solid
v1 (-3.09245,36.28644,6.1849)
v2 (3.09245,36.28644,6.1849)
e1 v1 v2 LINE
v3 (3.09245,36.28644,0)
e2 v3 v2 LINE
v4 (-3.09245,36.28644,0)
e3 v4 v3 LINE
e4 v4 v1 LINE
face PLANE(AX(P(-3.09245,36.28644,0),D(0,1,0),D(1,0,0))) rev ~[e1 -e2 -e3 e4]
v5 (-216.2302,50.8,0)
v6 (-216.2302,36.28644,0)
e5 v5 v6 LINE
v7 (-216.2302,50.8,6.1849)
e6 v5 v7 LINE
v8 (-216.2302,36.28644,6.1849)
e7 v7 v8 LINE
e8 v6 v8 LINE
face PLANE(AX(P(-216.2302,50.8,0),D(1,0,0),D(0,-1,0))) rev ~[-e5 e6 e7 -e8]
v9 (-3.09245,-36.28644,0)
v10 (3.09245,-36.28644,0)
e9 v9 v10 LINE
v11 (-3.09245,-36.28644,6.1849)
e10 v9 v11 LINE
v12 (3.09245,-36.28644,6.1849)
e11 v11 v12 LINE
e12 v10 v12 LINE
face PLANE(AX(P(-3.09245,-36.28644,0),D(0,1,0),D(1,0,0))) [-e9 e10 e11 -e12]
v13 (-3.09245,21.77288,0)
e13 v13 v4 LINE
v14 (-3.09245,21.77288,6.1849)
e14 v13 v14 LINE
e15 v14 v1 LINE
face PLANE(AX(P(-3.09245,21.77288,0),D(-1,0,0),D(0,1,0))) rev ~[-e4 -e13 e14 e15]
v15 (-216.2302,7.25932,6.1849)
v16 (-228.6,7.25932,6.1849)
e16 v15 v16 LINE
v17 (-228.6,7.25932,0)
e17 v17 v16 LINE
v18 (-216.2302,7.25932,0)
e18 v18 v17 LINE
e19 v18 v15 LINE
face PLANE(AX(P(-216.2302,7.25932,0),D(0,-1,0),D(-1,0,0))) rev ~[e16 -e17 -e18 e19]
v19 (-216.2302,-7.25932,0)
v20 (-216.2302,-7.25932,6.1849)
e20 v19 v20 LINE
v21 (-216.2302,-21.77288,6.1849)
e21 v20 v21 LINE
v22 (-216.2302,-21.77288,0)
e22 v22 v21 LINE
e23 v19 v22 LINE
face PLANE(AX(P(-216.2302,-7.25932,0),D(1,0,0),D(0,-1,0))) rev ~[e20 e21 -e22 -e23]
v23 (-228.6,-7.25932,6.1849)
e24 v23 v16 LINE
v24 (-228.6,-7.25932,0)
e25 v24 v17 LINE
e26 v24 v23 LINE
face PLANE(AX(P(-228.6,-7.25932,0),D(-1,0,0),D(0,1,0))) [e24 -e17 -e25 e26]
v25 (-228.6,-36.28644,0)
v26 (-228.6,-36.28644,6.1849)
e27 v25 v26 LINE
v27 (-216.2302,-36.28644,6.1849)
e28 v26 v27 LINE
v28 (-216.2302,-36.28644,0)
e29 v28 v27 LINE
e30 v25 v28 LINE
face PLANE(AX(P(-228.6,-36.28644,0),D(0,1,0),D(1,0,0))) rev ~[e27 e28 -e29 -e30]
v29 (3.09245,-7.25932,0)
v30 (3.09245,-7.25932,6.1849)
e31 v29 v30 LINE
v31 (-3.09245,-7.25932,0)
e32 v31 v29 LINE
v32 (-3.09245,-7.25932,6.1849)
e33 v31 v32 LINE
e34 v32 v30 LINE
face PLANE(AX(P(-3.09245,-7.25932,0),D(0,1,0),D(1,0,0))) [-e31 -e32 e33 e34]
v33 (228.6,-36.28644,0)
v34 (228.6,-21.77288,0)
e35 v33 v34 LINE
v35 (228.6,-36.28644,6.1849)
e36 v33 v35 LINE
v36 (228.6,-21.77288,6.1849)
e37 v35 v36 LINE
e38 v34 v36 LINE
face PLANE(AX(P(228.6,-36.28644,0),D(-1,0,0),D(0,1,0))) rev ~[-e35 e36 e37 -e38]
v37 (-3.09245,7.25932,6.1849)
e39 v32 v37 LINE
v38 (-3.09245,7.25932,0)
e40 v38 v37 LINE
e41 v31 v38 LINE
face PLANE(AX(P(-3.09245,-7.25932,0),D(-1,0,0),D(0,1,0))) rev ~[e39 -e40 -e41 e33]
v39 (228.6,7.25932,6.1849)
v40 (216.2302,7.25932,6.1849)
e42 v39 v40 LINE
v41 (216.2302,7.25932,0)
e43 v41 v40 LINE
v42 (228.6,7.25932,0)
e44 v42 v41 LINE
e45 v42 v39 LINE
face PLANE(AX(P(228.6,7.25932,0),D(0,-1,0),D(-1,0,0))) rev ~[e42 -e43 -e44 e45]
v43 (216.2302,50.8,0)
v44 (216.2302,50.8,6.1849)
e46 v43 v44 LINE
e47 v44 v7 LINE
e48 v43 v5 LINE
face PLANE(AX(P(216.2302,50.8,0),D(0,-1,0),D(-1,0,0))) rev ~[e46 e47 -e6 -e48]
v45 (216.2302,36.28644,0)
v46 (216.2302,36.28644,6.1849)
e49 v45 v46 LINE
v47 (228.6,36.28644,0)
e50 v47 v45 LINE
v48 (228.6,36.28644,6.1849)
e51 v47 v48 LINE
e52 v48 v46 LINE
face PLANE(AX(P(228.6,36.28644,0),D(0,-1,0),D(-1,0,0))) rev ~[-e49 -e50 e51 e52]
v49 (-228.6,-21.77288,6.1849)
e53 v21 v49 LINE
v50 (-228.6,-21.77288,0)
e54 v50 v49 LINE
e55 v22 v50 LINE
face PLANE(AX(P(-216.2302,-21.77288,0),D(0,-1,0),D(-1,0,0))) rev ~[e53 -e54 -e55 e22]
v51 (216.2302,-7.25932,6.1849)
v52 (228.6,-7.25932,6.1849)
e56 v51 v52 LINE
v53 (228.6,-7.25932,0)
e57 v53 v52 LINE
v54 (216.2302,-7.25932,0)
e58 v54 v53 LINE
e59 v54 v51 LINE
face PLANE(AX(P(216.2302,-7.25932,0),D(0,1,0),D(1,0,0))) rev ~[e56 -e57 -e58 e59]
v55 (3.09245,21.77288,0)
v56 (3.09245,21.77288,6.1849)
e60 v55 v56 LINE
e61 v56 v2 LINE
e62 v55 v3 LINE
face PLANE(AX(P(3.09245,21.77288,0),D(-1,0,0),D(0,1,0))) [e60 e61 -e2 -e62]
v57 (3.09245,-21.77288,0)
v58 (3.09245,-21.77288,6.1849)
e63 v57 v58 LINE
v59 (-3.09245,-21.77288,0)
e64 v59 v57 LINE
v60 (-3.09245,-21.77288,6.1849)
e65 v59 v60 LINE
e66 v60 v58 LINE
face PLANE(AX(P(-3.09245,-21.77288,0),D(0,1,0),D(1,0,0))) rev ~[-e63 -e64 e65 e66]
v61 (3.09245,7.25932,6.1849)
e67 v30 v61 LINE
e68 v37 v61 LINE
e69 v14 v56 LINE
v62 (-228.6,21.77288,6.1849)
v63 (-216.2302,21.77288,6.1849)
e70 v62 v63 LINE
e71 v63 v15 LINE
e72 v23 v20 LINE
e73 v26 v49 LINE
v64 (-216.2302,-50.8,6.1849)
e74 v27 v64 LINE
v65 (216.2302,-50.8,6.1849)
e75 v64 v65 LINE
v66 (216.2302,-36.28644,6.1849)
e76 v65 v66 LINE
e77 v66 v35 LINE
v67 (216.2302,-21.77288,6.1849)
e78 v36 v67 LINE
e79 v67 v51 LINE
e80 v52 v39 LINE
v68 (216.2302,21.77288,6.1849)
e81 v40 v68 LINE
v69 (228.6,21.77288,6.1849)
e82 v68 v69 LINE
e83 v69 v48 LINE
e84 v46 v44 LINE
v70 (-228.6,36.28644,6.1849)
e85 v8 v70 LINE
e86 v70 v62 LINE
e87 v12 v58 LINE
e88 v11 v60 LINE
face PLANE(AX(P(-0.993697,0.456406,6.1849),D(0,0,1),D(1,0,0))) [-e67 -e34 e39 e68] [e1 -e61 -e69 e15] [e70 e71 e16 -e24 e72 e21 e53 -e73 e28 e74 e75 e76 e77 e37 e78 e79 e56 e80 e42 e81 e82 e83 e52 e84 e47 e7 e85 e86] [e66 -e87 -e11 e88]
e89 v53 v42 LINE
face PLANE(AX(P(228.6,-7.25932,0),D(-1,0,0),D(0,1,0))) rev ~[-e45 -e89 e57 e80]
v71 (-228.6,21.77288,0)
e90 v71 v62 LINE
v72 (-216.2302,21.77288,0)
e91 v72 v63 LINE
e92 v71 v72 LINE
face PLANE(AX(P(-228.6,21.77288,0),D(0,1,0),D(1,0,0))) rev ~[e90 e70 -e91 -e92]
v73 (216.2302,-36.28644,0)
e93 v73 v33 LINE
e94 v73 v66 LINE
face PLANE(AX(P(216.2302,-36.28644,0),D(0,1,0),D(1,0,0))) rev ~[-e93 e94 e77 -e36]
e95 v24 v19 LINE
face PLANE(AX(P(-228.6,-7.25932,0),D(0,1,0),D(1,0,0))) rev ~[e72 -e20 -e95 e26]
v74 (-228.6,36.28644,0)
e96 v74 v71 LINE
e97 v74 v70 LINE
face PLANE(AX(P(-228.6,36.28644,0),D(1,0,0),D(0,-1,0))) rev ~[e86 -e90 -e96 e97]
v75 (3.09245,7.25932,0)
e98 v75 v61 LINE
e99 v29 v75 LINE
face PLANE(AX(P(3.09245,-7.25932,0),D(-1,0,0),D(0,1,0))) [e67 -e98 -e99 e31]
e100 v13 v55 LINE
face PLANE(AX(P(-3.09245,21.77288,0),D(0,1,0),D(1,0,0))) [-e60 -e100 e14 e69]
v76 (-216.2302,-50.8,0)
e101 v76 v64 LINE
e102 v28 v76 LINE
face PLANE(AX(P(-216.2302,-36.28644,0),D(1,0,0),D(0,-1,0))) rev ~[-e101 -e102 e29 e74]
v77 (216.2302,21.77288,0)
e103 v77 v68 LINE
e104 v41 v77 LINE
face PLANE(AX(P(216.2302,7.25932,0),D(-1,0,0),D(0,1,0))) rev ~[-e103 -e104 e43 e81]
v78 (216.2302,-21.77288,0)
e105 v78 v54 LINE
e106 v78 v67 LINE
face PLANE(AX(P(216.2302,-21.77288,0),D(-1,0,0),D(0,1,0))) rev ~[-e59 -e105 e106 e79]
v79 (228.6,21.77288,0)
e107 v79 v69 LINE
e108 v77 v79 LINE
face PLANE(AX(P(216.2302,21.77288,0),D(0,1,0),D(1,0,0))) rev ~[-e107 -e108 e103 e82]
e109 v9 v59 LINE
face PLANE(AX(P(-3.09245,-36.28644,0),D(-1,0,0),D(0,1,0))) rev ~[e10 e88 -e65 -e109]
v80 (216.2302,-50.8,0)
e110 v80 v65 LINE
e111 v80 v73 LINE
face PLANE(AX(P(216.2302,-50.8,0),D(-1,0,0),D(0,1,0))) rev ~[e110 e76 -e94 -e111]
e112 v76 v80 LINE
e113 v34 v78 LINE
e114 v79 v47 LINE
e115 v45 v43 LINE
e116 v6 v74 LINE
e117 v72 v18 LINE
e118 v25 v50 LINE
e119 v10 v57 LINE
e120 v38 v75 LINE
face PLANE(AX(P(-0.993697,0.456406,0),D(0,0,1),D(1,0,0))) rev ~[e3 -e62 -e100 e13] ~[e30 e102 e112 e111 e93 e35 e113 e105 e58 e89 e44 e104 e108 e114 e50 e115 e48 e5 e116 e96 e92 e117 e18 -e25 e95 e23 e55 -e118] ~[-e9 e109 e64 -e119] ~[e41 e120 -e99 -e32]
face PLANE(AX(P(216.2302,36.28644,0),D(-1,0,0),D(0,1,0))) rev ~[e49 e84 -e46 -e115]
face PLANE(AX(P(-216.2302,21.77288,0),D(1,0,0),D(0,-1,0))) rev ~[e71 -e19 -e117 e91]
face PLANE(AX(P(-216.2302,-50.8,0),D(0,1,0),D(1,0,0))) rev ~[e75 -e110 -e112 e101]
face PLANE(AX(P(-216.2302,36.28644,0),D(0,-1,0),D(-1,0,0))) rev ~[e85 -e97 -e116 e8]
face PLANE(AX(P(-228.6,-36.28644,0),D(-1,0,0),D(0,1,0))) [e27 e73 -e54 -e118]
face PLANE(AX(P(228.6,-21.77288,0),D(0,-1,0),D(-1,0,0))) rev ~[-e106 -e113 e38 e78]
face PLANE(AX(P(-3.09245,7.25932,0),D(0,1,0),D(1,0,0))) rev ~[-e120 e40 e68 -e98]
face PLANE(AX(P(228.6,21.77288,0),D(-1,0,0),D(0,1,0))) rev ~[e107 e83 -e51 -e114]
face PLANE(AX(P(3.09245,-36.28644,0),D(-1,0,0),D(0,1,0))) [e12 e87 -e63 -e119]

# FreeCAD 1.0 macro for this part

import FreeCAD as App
import Part
import Sketcher
Q = App.Units.Quantity

doc = App.newDocument("Part")
body = doc.addObject("PartDesign::Body", "Body")

sketch1 = doc.addObject("Sketcher::SketchObject", "Sketch")
body.addObject(sketch1)
sketch1.AttachmentSupport = (doc.XY_Plane, [""])
sketch1.MapMode = "FlatFace"
sketch1.addGeometry(Part.LineSegment(App.Vector(216.2302, -50.8, 0), App.Vector(216.2302, -36.28644, 0)), False)
sketch1.addGeometry(Part.LineSegment(App.Vector(216.2302, -36.28644, 0), App.Vector(228.6, -36.28644, 0)), False)
sketch1.addGeometry(Part.LineSegment(App.Vector(228.6, -36.28644, 0), App.Vector(228.6, -21.77288, 0)), False)
sketch1.addGeometry(Part.LineSegment(App.Vector(228.6, -21.77288, 0), App.Vector(216.2302, -21.77288, 0)), False)
sketch1.addGeometry(Part.LineSegment(App.Vector(216.2302, -21.77288, 0), App.Vector(216.2302, -7.25932, 0)), False)
sketch1.addGeometry(Part.LineSegment(App.Vector(216.2302, -7.25932, 0), App.Vector(228.6, -7.25932, 0)), False)
sketch1.addGeometry(Part.LineSegment(App.Vector(228.6, -7.25932, 0), App.Vector(228.6, 7.25932, 0)), False)
sketch1.addGeometry(Part.LineSegment(App.Vector(228.6, 7.25932, 0), App.Vector(216.2302, 7.25932, 0)), False)
sketch1.addGeometry(Part.LineSegment(App.Vector(216.2302, 7.25932, 0), App.Vector(216.2302, 21.77288, 0)), False)
sketch1.addGeometry(Part.LineSegment(App.Vector(216.2302, 21.77288, 0), App.Vector(228.6, 21.77288, 0)), False)
sketch1.addGeometry(Part.LineSegment(App.Vector(228.6, 21.77288, 0), App.Vector(228.6, 36.28644, 0)), False)
sketch1.addGeometry(Part.LineSegment(App.Vector(228.6, 36.28644, 0), App.Vector(216.2302, 36.28644, 0)), False)
sketch1.addGeometry(Part.LineSegment(App.Vector(216.2302, 36.28644, 0), App.Vector(216.2302, 50.8, 0)), False)
sketch1.addGeometry(Part.LineSegment(App.Vector(216.2302, 50.8, 0), App.Vector(-216.2302, 50.8, 0)), False)
sketch1.addGeometry(Part.LineSegment(App.Vector(-216.2302, 50.8, 0), App.Vector(-216.2302, 36.28644, 0)), False)
sketch1.addGeometry(Part.LineSegment(App.Vector(-216.2302, 36.28644, 0), App.Vector(-228.6, 36.28644, 0)), False)
sketch1.addGeometry(Part.LineSegment(App.Vector(-228.6, 36.28644, 0), App.Vector(-228.6, 21.77288, 0)), False)
sketch1.addGeometry(Part.LineSegment(App.Vector(-228.6, 21.77288, 0), App.Vector(-216.2302, 21.77288, 0)), False)
sketch1.addGeometry(Part.LineSegment(App.Vector(-216.2302, 21.77288, 0), App.Vector(-216.2302, 7.25932, 0)), False)
sketch1.addGeometry(Part.LineSegment(App.Vector(-216.2302, 7.25932, 0), App.Vector(-228.6, 7.25932, 0)), False)
sketch1.addGeometry(Part.LineSegment(App.Vector(-228.6, 7.25932, 0), App.Vector(-228.6, -7.25932, 0)), False)
sketch1.addGeometry(Part.LineSegment(App.Vector(-228.6, -7.25932, 0), App.Vector(-216.2302, -7.25932, 0)), False)
sketch1.addGeometry(Part.LineSegment(App.Vector(-216.2302, -7.25932, 0), App.Vector(-216.2302, -21.77288, 0)), False)
sketch1.addGeometry(Part.LineSegment(App.Vector(-216.2302, -21.77288, 0), App.Vector(-228.6, -21.77288, 0)), False)
sketch1.addGeometry(Part.LineSegment(App.Vector(-228.6, -21.77288, 0), App.Vector(-228.6, -36.28644, 0)), False)
sketch1.addGeometry(Part.LineSegment(App.Vector(-228.6, -36.28644, 0), App.Vector(-216.2302, -36.28644, 0)), False)
sketch1.addGeometry(Part.LineSegment(App.Vector(-216.2302, -36.28644, 0), App.Vector(-216.2302, -50.8, 0)), False)
sketch1.addGeometry(Part.LineSegment(App.Vector(-216.2302, -50.8, 0), App.Vector(216.2302, -50.8, 0)), False)
sketch1.addGeometry(Part.LineSegment(App.Vector(3.09245, -36.28644, 0), App.Vector(-3.09245, -36.28644, 0)), False)
sketch1.addGeometry(Part.LineSegment(App.Vector(-3.09245, -36.28644, 0), App.Vector(-3.09245, -21.77288, 0)), False)
sketch1.addGeometry(Part.LineSegment(App.Vector(-3.09245, -21.77288, 0), App.Vector(3.09245, -21.77288, 0)), False)
sketch1.addGeometry(Part.LineSegment(App.Vector(3.09245, -21.77288, 0), App.Vector(3.09245, -36.28644, 0)), False)
sketch1.addGeometry(Part.LineSegment(App.Vector(3.09245, -7.25932, 0), App.Vector(-3.09245, -7.25932, 0)), False)
sketch1.addGeometry(Part.LineSegment(App.Vector(-3.09245, -7.25932, 0), App.Vector(-3.09245, 7.25932, 0)), False)
sketch1.addGeometry(Part.LineSegment(App.Vector(-3.09245, 7.25932, 0), App.Vector(3.09245, 7.25932, 0)), False)
sketch1.addGeometry(Part.LineSegment(App.Vector(3.09245, 7.25932, 0), App.Vector(3.09245, -7.25932, 0)), False)
sketch1.addGeometry(Part.LineSegment(App.Vector(3.09245, 21.77288, 0), App.Vector(-3.09245, 21.77288, 0)), False)
sketch1.addGeometry(Part.LineSegment(App.Vector(-3.09245, 21.77288, 0), App.Vector(-3.09245, 36.28644, 0)), False)
sketch1.addGeometry(Part.LineSegment(App.Vector(-3.09245, 36.28644, 0), App.Vector(3.09245, 36.28644, 0)), False)
sketch1.addGeometry(Part.LineSegment(App.Vector(3.09245, 36.28644, 0), App.Vector(3.09245, 21.77288, 0)), False)
sketch1.addConstraint(Sketcher.Constraint("Coincident", 0, 2, 1, 1))
sketch1.addConstraint(Sketcher.Constraint("Coincident", 1, 2, 2, 1))
sketch1.addConstraint(Sketcher.Constraint("Coincident", 2, 2, 3, 1))
sketch1.addConstraint(Sketcher.Constraint("Coincident", 3, 2, 4, 1))
sketch1.addConstraint(Sketcher.Constraint("Coincident", 4, 2, 5, 1))
sketch1.addConstraint(Sketcher.Constraint("Coincident", 5, 2, 6, 1))
sketch1.addConstraint(Sketcher.Constraint("Coincident", 6, 2, 7, 1))
sketch1.addConstraint(Sketcher.Constraint("Coincident", 7, 2, 8, 1))
sketch1.addConstraint(Sketcher.Constraint("Coincident", 8, 2, 9, 1))
sketch1.addConstraint(Sketcher.Constraint("Coincident", 9, 2, 10, 1))
sketch1.addConstraint(Sketcher.Constraint("Coincident", 10, 2, 11, 1))
sketch1.addConstraint(Sketcher.Constraint("Coincident", 11, 2, 12, 1))
sketch1.addConstraint(Sketcher.Constraint("Coincident", 12, 2, 13, 1))
sketch1.addConstraint(Sketcher.Constraint("Coincident", 13, 2, 14, 1))
sketch1.addConstraint(Sketcher.Constraint("Coincident", 14, 2, 15, 1))
sketch1.addConstraint(Sketcher.Constraint("Coincident", 15, 2, 16, 1))
sketch1.addConstraint(Sketcher.Constraint("Coincident", 16, 2, 17, 1))
sketch1.addConstraint(Sketcher.Constraint("Coincident", 17, 2, 18, 1))
sketch1.addConstraint(Sketcher.Constraint("Coincident", 18, 2, 19, 1))
sketch1.addConstraint(Sketcher.Constraint("Coincident", 19, 2, 20, 1))
sketch1.addConstraint(Sketcher.Constraint("Coincident", 20, 2, 21, 1))
sketch1.addConstraint(Sketcher.Constraint("Coincident", 21, 2, 22, 1))
sketch1.addConstraint(Sketcher.Constraint("Coincident", 22, 2, 23, 1))
sketch1.addConstraint(Sketcher.Constraint("Coincident", 23, 2, 24, 1))
sketch1.addConstraint(Sketcher.Constraint("Coincident", 24, 2, 25, 1))
sketch1.addConstraint(Sketcher.Constraint("Coincident", 25, 2, 26, 1))
sketch1.addConstraint(Sketcher.Constraint("Coincident", 26, 2, 27, 1))
sketch1.addConstraint(Sketcher.Constraint("Coincident", 27, 2, 0, 1))
sketch1.addConstraint(Sketcher.Constraint("Coincident", 28, 2, 29, 1))
sketch1.addConstraint(Sketcher.Constraint("Coincident", 29, 2, 30, 1))
sketch1.addConstraint(Sketcher.Constraint("Coincident", 30, 2, 31, 1))
sketch1.addConstraint(Sketcher.Constraint("Coincident", 31, 2, 28, 1))
sketch1.addConstraint(Sketcher.Constraint("Coincident", 32, 2, 33, 1))
sketch1.addConstraint(Sketcher.Constraint("Coincident", 33, 2, 34, 1))
sketch1.addConstraint(Sketcher.Constraint("Coincident", 34, 2, 35, 1))
sketch1.addConstraint(Sketcher.Constraint("Coincident", 35, 2, 32, 1))
sketch1.addConstraint(Sketcher.Constraint("Coincident", 36, 2, 37, 1))
sketch1.addConstraint(Sketcher.Constraint("Coincident", 37, 2, 38, 1))
sketch1.addConstraint(Sketcher.Constraint("Coincident", 38, 2, 39, 1))
sketch1.addConstraint(Sketcher.Constraint("Coincident", 39, 2, 36, 1))
sketch1.addConstraint(Sketcher.Constraint("Vertical", 0))
sketch1.addConstraint(Sketcher.Constraint("Horizontal", 1))
sketch1.addConstraint(Sketcher.Constraint("Vertical", 2))
sketch1.addConstraint(Sketcher.Constraint("Horizontal", 3))
sketch1.addConstraint(Sketcher.Constraint("Vertical", 4))
sketch1.addConstraint(Sketcher.Constraint("Horizontal", 5))
sketch1.addConstraint(Sketcher.Constraint("Vertical", 6))
sketch1.addConstraint(Sketcher.Constraint("Horizontal", 7))
sketch1.addConstraint(Sketcher.Constraint("Vertical", 8))
sketch1.addConstraint(Sketcher.Constraint("Horizontal", 9))
sketch1.addConstraint(Sketcher.Constraint("Vertical", 10))
sketch1.addConstraint(Sketcher.Constraint("Horizontal", 11))
sketch1.addConstraint(Sketcher.Constraint("Vertical", 12))
sketch1.addConstraint(Sketcher.Constraint("Horizontal", 13))
sketch1.addConstraint(Sketcher.Constraint("Vertical", 14))
sketch1.addConstraint(Sketcher.Constraint("Horizontal", 15))
sketch1.addConstraint(Sketcher.Constraint("Vertical", 16))
sketch1.addConstraint(Sketcher.Constraint("Horizontal", 17))
sketch1.addConstraint(Sketcher.Constraint("Vertical", 18))
sketch1.addConstraint(Sketcher.Constraint("Horizontal", 19))
sketch1.addConstraint(Sketcher.Constraint("Vertical", 20))
sketch1.addConstraint(Sketcher.Constraint("Horizontal", 21))
sketch1.addConstraint(Sketcher.Constraint("Vertical", 22))
sketch1.addConstraint(Sketcher.Constraint("Horizontal", 23))
sketch1.addConstraint(Sketcher.Constraint("Vertical", 24))
sketch1.addConstraint(Sketcher.Constraint("Horizontal", 25))
sketch1.addConstraint(Sketcher.Constraint("Vertical", 26))
sketch1.addConstraint(Sketcher.Constraint("Horizontal", 27))
sketch1.addConstraint(Sketcher.Constraint("Horizontal", 28))
sketch1.addConstraint(Sketcher.Constraint("Vertical", 29))
sketch1.addConstraint(Sketcher.Constraint("Horizontal", 30))
sketch1.addConstraint(Sketcher.Constraint("Vertical", 31))
sketch1.addConstraint(Sketcher.Constraint("Horizontal", 32))
sketch1.addConstraint(Sketcher.Constraint("Vertical", 33))
sketch1.addConstraint(Sketcher.Constraint("Horizontal", 34))
sketch1.addConstraint(Sketcher.Constraint("Vertical", 35))
sketch1.addConstraint(Sketcher.Constraint("Horizontal", 36))
sketch1.addConstraint(Sketcher.Constraint("Vertical", 37))
sketch1.addConstraint(Sketcher.Constraint("Horizontal", 38))
sketch1.addConstraint(Sketcher.Constraint("Vertical", 39))
sketch1.addConstraint(Sketcher.Constraint("Symmetric", 0, 2, 14, 2, -1, 1))
sketch1.addConstraint(Sketcher.Constraint("Symmetric", 2, 2, 16, 2, -1, 1))
sketch1.addConstraint(Sketcher.Constraint("Symmetric", 4, 2, 18, 2, -1, 1))
sketch1.addConstraint(Sketcher.Constraint("Symmetric", 6, 2, 20, 2, -1, 1))
sketch1.addConstraint(Sketcher.Constraint("Symmetric", 8, 2, 22, 2, -1, 1))
sketch1.addConstraint(Sketcher.Constraint("Symmetric", 10, 2, 24, 2, -1, 1))
sketch1.addConstraint(Sketcher.Constraint("Symmetric", 12, 2, 26, 2, -1, 1))
sketch1.addConstraint(Sketcher.Constraint("Symmetric", 32, 2, 34, 2, -1, 1))
sketch1.addConstraint(Sketcher.Constraint("Symmetric", 30, 2, 36, 2, -1, 1))
sketch1.addConstraint(Sketcher.Constraint("Symmetric", 28, 2, 38, 2, -1, 1))
sketch1.addConstraint(Sketcher.Constraint("Symmetric", 11, 2, 14, 2, -2))
sketch1.addConstraint(Sketcher.Constraint("Symmetric", 9, 2, 16, 2, -2))
sketch1.addConstraint(Sketcher.Constraint("Symmetric", 7, 2, 18, 2, -2))
sketch1.addConstraint(Sketcher.Constraint("Horizontal", 25, 2, 28, 2))
sketch1.addConstraint(Sketcher.Constraint("Horizontal", 23, 2, 29, 2))
sketch1.addConstraint(Sketcher.Constraint("Horizontal", 21, 2, 32, 2))
sketch1.addConstraint(Sketcher.Constraint("Vertical", 0, 2, 3, 2))
sketch1.addConstraint(Sketcher.Constraint("Vertical", 2, 2, 5, 2))
sketch1.addConstraint(Sketcher.Constraint("Vertical", 29, 2, 32, 2))
sketch1.addConstraint(Sketcher.Constraint("Vertical", 31, 2, 34, 2))
sketch1.addConstraint(Sketcher.Constraint("Equal", 0, 2))
sketch1.addConstraint(Sketcher.Constraint("Equal", 2, 4))
sketch1.addConstraint(Sketcher.Constraint("DistanceX", -1, 1, 1, 2, Q("9 in")))
sketch1.addConstraint(Sketcher.Constraint("DistanceY", -1, 1, 12, 2, Q("2 in")))
sketch1.addConstraint(Sketcher.Constraint("DistanceX", 1, 1, 1, 2, Q("0.487 in")))
sketch1.addConstraint(Sketcher.Constraint("DistanceX", 28, 2, 28, 1, Q("0.2435 in")))
sketch1.addConstraint(Sketcher.Constraint("DistanceY", 0, 1, 0, 2, Q("0.5714 in")))
pad1 = doc.addObject("PartDesign::Pad", "Pad")
body.addObject(pad1)
pad1.Profile = sketch1
pad1.Length = Q("0.2435 in")

doc.recompute()
